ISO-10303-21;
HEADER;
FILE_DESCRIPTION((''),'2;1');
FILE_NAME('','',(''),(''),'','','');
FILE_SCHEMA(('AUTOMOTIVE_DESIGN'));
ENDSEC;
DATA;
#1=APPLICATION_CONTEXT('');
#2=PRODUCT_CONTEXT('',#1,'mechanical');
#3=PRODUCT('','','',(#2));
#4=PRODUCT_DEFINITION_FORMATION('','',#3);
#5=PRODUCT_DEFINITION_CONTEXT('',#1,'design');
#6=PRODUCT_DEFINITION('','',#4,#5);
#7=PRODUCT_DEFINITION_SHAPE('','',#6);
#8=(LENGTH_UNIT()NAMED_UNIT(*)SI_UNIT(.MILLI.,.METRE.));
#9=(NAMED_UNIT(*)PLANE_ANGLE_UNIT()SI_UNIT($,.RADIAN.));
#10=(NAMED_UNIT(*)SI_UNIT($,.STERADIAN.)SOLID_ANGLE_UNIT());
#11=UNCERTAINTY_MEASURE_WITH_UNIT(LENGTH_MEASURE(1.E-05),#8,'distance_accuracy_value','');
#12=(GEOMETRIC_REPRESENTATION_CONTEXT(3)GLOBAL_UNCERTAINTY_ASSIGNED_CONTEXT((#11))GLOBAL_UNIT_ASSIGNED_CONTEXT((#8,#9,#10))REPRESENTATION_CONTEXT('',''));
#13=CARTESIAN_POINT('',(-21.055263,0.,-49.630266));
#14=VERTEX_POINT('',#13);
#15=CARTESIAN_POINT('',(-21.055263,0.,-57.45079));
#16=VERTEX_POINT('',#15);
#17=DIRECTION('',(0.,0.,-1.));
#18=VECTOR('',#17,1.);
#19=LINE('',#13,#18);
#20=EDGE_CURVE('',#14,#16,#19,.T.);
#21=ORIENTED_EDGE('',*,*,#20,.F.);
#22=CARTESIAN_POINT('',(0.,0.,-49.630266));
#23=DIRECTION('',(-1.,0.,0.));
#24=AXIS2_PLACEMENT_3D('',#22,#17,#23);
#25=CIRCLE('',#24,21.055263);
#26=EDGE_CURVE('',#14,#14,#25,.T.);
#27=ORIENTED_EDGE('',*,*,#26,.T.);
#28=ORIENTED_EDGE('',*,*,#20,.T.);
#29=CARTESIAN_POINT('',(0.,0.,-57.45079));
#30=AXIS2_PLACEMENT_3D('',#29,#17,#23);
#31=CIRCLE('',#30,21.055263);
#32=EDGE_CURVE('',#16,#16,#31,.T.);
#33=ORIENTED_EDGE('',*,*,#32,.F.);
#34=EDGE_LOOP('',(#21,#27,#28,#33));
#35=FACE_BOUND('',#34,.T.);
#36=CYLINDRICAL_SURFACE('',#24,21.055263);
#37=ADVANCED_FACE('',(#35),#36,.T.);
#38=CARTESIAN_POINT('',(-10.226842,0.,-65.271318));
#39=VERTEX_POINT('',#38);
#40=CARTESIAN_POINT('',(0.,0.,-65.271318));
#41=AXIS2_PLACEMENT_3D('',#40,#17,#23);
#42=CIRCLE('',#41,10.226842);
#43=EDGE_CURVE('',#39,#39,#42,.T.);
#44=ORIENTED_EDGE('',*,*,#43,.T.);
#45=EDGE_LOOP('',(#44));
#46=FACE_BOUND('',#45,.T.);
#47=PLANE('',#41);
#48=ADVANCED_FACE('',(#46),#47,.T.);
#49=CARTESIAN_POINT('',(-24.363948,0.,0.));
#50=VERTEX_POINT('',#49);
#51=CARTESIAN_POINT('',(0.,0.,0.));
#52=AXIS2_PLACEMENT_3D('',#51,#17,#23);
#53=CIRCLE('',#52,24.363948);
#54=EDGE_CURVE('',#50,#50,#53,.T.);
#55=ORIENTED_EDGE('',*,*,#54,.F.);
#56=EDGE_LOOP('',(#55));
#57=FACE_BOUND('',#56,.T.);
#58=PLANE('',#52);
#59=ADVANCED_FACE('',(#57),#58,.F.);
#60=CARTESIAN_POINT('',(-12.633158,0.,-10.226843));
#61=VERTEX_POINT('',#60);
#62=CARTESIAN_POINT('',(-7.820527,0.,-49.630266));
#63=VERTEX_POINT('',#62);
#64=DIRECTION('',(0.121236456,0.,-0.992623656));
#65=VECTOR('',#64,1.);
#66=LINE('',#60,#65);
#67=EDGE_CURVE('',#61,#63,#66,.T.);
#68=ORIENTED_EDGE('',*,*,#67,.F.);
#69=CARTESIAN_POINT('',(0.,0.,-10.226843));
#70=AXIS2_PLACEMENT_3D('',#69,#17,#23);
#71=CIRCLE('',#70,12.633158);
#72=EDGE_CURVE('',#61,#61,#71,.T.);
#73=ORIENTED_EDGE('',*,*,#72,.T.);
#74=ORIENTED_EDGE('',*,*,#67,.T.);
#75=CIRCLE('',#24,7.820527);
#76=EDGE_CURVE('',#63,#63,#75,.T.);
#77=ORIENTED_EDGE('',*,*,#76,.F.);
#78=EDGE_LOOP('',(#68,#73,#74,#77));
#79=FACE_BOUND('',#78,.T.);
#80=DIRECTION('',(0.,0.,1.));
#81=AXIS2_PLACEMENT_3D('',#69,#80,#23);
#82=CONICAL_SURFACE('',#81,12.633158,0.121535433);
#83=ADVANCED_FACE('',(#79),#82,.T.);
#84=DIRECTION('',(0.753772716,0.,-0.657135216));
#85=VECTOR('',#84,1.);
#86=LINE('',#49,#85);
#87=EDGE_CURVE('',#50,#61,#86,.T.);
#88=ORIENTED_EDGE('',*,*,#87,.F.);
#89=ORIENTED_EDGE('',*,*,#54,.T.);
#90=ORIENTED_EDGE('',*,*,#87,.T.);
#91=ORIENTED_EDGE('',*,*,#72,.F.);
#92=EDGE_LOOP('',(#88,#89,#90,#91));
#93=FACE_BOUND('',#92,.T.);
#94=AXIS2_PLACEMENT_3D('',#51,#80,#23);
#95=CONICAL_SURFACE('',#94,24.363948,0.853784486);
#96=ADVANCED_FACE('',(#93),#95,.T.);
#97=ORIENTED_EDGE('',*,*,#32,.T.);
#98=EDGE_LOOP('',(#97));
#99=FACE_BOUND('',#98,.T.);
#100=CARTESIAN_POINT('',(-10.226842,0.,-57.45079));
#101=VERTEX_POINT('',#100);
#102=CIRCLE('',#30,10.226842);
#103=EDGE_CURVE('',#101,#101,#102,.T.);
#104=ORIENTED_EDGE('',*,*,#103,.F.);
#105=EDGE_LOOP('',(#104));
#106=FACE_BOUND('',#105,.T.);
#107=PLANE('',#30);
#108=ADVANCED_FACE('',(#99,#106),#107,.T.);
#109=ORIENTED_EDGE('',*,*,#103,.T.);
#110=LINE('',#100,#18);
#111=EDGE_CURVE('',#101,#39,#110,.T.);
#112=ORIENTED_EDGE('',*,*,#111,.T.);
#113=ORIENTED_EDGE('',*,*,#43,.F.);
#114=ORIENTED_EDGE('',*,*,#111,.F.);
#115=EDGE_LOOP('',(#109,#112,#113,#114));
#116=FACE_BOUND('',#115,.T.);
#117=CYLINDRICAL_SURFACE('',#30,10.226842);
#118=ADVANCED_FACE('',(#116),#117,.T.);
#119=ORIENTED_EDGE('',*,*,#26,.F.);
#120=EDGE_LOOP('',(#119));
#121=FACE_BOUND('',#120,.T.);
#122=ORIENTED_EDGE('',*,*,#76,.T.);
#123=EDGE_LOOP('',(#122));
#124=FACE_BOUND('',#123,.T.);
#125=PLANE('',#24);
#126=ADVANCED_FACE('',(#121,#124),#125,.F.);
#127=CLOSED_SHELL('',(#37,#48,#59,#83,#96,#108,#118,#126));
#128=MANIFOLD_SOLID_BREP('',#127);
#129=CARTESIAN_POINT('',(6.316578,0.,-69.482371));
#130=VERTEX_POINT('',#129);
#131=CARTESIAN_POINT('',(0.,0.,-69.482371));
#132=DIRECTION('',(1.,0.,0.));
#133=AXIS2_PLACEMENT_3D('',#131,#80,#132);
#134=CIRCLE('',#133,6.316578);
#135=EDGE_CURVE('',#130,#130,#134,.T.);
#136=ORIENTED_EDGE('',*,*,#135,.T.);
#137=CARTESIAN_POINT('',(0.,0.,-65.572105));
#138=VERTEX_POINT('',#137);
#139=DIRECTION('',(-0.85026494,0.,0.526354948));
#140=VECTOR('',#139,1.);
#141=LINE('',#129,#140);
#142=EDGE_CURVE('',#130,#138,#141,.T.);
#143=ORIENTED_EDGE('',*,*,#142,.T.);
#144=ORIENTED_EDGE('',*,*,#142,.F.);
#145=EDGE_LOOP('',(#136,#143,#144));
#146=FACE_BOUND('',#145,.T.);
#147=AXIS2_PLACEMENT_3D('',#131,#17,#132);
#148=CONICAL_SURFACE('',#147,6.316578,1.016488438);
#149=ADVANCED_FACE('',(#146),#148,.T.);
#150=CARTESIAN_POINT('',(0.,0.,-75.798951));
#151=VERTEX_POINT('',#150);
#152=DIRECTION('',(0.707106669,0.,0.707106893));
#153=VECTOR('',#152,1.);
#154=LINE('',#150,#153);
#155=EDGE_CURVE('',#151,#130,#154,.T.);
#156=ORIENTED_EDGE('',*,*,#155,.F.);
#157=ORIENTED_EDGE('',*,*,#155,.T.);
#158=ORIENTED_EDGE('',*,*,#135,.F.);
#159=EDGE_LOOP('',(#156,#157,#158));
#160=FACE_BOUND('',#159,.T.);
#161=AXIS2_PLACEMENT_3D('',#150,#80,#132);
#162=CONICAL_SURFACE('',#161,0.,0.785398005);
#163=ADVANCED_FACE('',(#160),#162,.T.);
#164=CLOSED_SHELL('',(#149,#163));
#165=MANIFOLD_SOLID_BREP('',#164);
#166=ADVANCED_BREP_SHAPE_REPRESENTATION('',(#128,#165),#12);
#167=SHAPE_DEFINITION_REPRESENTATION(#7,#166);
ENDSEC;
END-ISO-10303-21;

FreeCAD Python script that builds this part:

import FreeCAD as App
import Part
import Sketcher
Q = App.Units.Quantity

doc = App.newDocument("Part")
body = doc.addObject("PartDesign::Body", "Body")

# Sketch on XZ plane
sketch1 = body.newObject("Sketcher::SketchObject", "Sketch")
sketch1.AttachmentSupport = (doc.getObject("XZ_Plane"), [""])
sketch1.MapMode = "FlatFace"
sketch1.addGeometry([
    Part.LineSegment(App.Vector(0, -65, 0), App.Vector(0, 0, 0)),  # 0
    Part.LineSegment(App.Vector(0, 0, 0), App.Vector(-24, 0, 0)),  # 1
    Part.LineSegment(App.Vector(-24, 0, 0), App.Vector(-13, -10, 0)),  # 2
    Part.LineSegment(App.Vector(-13, -10, 0), App.Vector(-8, -50, 0)),  # 3
    Part.LineSegment(App.Vector(-8, -50, 0), App.Vector(-21, -50, 0)),  # 4
    Part.LineSegment(App.Vector(-21, -50, 0), App.Vector(-21, -57, 0)),  # 5
    Part.LineSegment(App.Vector(-21, -57, 0), App.Vector(-10, -57, 0)),  # 6
    Part.LineSegment(App.Vector(-10, -57, 0), App.Vector(-10, -65, 0)),  # 7
    Part.LineSegment(App.Vector(-10, -65, 0), App.Vector(0, -65, 0)),  # 8
], False)
sketch1.addConstraint([
    Sketcher.Constraint("Coincident", 0, 2, 1, 1),
    Sketcher.Constraint("Coincident", 1, 2, 2, 1),
    Sketcher.Constraint("Coincident", 2, 2, 3, 1),
    Sketcher.Constraint("Coincident", 3, 2, 4, 1),
    Sketcher.Constraint("Coincident", 4, 2, 5, 1),
    Sketcher.Constraint("Coincident", 5, 2, 6, 1),
    Sketcher.Constraint("Coincident", 6, 2, 7, 1),
    Sketcher.Constraint("Coincident", 7, 2, 8, 1),
    Sketcher.Constraint("Coincident", 8, 2, 0, 1),
    Sketcher.Constraint("Vertical", 0),
    Sketcher.Constraint("Horizontal", 1),
    Sketcher.Constraint("Horizontal", 4),
    Sketcher.Constraint("Vertical", 5),
    Sketcher.Constraint("Horizontal", 6),
    Sketcher.Constraint("Vertical", 7),
    Sketcher.Constraint("Horizontal", 8),
    Sketcher.Constraint("Coincident", 0, 2, -1, 1),
    Sketcher.Constraint("DistanceX", 1, 2, 1, 1, Q("24.363948 mm")),
    Sketcher.Constraint("DistanceX", 6, 1, 6, 2, Q("10.828421 mm")),
    Sketcher.Constraint("Distance", 2, Q("15.562768 mm")),
    Sketcher.Constraint("DistanceX", 4, 2, 4, 1, Q("13.234736 mm")),
    Sketcher.Constraint("DistanceX", 8, 1, 8, 2, Q("10.226842 mm")),
    Sketcher.Constraint("DistanceY", 0, 1, 0, 2, Q("65.271318 mm")),
    Sketcher.Constraint("DistanceY", 5, 2, 5, 1, Q("7.820524 mm")),
    Sketcher.Constraint("DistanceY", 7, 2, 7, 1, Q("7.820528 mm")),
    Sketcher.Constraint("DistanceX", 1, 2, 2, 2, Q("11.73079 mm")),
])
revolution = body.newObject("PartDesign::Revolution", "Revolution")
revolution.Profile = sketch1
revolution.ReferenceAxis = (sketch1, ["V_Axis"])
revolution.Angle = 360
body2 = doc.addObject("PartDesign::Body", "Body001")

# Sketch on XZ plane
sketch2 = body2.newObject("Sketcher::SketchObject", "Sketch001")
sketch2.AttachmentSupport = (doc.getObject("XZ_Plane001"), [""])
sketch2.MapMode = "FlatFace"
sketch2.addGeometry([
    Part.LineSegment(App.Vector(6, -69, 0), App.Vector(0, -66, 0)),
    Part.LineSegment(App.Vector(0, -66, 0), App.Vector(0, -76, 0)),
    Part.LineSegment(App.Vector(0, -76, 0), App.Vector(6, -69, 0)),
], False)
sketch2.addConstraint([
    Sketcher.Constraint("Coincident", 0, 2, 1, 1),
    Sketcher.Constraint("Coincident", 1, 2, 2, 1),
    Sketcher.Constraint("Coincident", 2, 2, 0, 1),
    Sketcher.Constraint("Vertical", 1),
    Sketcher.Constraint("PointOnObject", 0, 2, -2),
    Sketcher.Constraint("Angle", 2, Q("45.000009 deg")),
    Sketcher.Constraint("Distance", 2, Q("8.932992 mm")),
    Sketcher.Constraint("DistanceY", 1, 2, 1, 1, Q("10.226846 mm")),
    Sketcher.Constraint("DistanceY", 1, 2, -1, 1, Q("75.798951 mm")),
])
revolution2 = body2.newObject("PartDesign::Revolution", "Revolution001")
revolution2.Profile = sketch2
revolution2.ReferenceAxis = (sketch2, ["V_Axis"])
revolution2.Angle = 360

doc.recompute()
